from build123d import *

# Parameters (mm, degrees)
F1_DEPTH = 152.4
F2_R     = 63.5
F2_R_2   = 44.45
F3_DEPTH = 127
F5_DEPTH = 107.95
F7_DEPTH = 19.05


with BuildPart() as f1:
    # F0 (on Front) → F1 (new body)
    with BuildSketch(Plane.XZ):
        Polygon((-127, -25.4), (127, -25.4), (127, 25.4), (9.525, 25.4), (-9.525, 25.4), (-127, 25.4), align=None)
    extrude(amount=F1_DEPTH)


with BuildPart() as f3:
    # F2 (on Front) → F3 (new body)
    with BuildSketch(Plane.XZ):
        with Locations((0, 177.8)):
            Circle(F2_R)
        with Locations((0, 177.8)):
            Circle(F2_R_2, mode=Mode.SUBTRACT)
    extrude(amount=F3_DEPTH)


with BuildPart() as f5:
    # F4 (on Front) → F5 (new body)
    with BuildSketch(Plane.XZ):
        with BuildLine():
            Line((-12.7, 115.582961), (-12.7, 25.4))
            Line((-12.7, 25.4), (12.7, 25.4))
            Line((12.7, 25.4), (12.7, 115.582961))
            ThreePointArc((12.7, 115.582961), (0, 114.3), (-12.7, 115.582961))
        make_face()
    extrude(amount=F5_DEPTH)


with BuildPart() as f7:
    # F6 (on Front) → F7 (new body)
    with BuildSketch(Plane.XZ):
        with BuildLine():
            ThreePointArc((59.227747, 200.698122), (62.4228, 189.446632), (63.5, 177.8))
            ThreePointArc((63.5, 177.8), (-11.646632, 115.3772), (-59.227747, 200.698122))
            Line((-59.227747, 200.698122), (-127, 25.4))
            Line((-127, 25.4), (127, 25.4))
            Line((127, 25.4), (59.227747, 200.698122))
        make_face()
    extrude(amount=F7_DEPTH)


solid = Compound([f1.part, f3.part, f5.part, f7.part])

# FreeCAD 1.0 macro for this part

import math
import FreeCAD as App
import Part
import Sketcher
from FreeCAD import Vector
Q = App.Units.Quantity

doc = App.newDocument("Part")
body = doc.addObject("PartDesign::Body", "Body")

# Sketch on XZ plane
sketch1 = body.newObject("Sketcher::SketchObject", "Sketch")
sketch1.AttachmentSupport = (doc.getObject("XZ_Plane"), [""])
sketch1.MapMode = "FlatFace"
sketch1.addGeometry([
    Part.LineSegment(Vector(-127, -25, 0), Vector(127, -25, 0)),
    Part.LineSegment(Vector(127, -25, 0), Vector(127, 25, 0)),
    Part.LineSegment(Vector(127, 25, 0), Vector(-127, 25, 0)),
    Part.LineSegment(Vector(-127, 25, 0), Vector(-127, -25, 0)),
], False)
sketch1.addConstraint([
    Sketcher.Constraint("Coincident", 0, 2, 1, 1),
    Sketcher.Constraint("Coincident", 1, 2, 2, 1),
    Sketcher.Constraint("Coincident", 2, 2, 3, 1),
    Sketcher.Constraint("Coincident", 3, 2, 0, 1),
    Sketcher.Constraint("Horizontal", 0),
    Sketcher.Constraint("Vertical", 1),
    Sketcher.Constraint("Horizontal", 2),
    Sketcher.Constraint("Vertical", 3),
    Sketcher.Constraint("Symmetric", 0, 2, 2, 2, -1, 1),
    Sketcher.Constraint("DistanceX", 0, 1, 0, 2, Q("10 in")),
    Sketcher.Constraint("DistanceY", 1, 1, 1, 2, Q("2 in")),
])
pad1 = body.newObject("PartDesign::Pad", "Pad")
pad1.Profile = sketch1
pad1.Length = Q("6 in")
body2 = doc.addObject("PartDesign::Body", "Body001")

# Sketch on XZ plane
sketch2 = body2.newObject("Sketcher::SketchObject", "Sketch001")
sketch2.AttachmentSupport = (doc.getObject("XZ_Plane001"), [""])
sketch2.MapMode = "FlatFace"
sketch2.addGeometry([
    Part.Circle(Vector(0, 178, 0), Vector(0, 0, 1), 64),
    Part.Circle(Vector(0, 178, 0), Vector(0, 0, 1), 44),
], False)
sketch2.addConstraint([
    Sketcher.Constraint("Coincident", 1, 3, 0, 3),
    Sketcher.Constraint("PointOnObject", 0, 3, -2),
    Sketcher.Constraint("Diameter", 0, Q("5 in")),
    Sketcher.Constraint("Diameter", 1, Q("3.5 in")),
    Sketcher.Constraint("DistanceY", -1, 1, 0, 3, Q("7 in")),
])
pad2 = body2.newObject("PartDesign::Pad", "Pad001")
pad2.Profile = sketch2
pad2.Length = Q("5 in")
body3 = doc.addObject("PartDesign::Body", "Body002")

# Sketch on XZ plane
sketch3 = body3.newObject("Sketcher::SketchObject", "Sketch002")
sketch3.AttachmentSupport = (doc.getObject("XZ_Plane002"), [""])
sketch3.MapMode = "FlatFace"
sketch3.addGeometry([
    Part.LineSegment(Vector(-13, 116, 0), Vector(-13, 25, 0)),
    Part.LineSegment(Vector(-13, 25, 0), Vector(13, 25, 0)),
    Part.LineSegment(Vector(13, 25, 0), Vector(13, 116, 0)),
    Part.ArcOfCircle(Part.Circle(Vector(0, 178, 0), Vector(0, 0, 1), 63), math.radians(-102), math.radians(-78)),
], False)
sketch3.addConstraint([
    Sketcher.Constraint("Coincident", 0, 2, 1, 1),
    Sketcher.Constraint("Coincident", 1, 2, 2, 1),
    Sketcher.Constraint("Coincident", 2, 2, 3, 2),
    Sketcher.Constraint("Coincident", 3, 1, 0, 1),
    Sketcher.Constraint("Vertical", 0),
    Sketcher.Constraint("Horizontal", 1),
    Sketcher.Constraint("Vertical", 2),
    Sketcher.Constraint("Symmetric", 2, 2, 3, 1, -2),
    Sketcher.Constraint("DistanceX", 1, 1, 1, 2, Q("1 in")),
    Sketcher.Constraint("DistanceY", -1, 1, 0, 2, Q("1 in")),
    Sketcher.Constraint("Radius", 3, Q("63.499977 mm")),
    Sketcher.Constraint("DistanceY", 0, 2, 0, 1, Q("90.182961 mm")),
])
pad3 = body3.newObject("PartDesign::Pad", "Pad002")
pad3.Profile = sketch3
pad3.Length = Q("4.25 in")
body4 = doc.addObject("PartDesign::Body", "Body003")

# Sketch on XZ plane
sketch4 = body4.newObject("Sketcher::SketchObject", "Sketch003")
sketch4.AttachmentSupport = (doc.getObject("XZ_Plane003"), [""])
sketch4.MapMode = "FlatFace"
sketch4.addGeometry([
    Part.ArcOfCircle(Part.Circle(Vector(0, 178, 0), Vector(0, 0, 1), 64), math.radians(0), math.radians(21)),  # 0
    Part.ArcOfCircle(Part.Circle(Vector(0, 178, 0), Vector(0, 0, 1), 64), math.radians(159), math.radians(360)),  # 1
    Part.LineSegment(Vector(-59, 201, 0), Vector(-127, 25, 0)),  # 2
    Part.LineSegment(Vector(-127, 25, 0), Vector(127, 25, 0)),  # 3
    Part.LineSegment(Vector(127, 25, 0), Vector(59, 201, 0)),  # 4
], False)
sketch4.addConstraint([
    Sketcher.Constraint("Tangent", 0, 1, 1, 2),
    Sketcher.Constraint("Tangent", 1, 1, 2, 1),
    Sketcher.Constraint("Coincident", 2, 2, 3, 1),
    Sketcher.Constraint("Coincident", 3, 2, 4, 1),
    Sketcher.Constraint("Tangent", 4, 2, 0, 2),
    Sketcher.Constraint("Horizontal", 3),
    Sketcher.Constraint("Symmetric", 1, 1, 4, 2, -2),
    Sketcher.Constraint("PointOnObject", 1, 3, -2),
    Sketcher.Constraint("Horizontal", 1, 3, 0, 1),
    Sketcher.Constraint("Radius", 0, Q("2.5000001 in")),
    Sketcher.Constraint("DistanceX", 3, 1, 3, 2, Q("10 in")),
    Sketcher.Constraint("DistanceY", -1, 1, 0, 3, Q("7 in")),
    Sketcher.Constraint("DistanceY", -1, 1, 2, 2, Q("1 in")),
])
pad4 = body4.newObject("PartDesign::Pad", "Pad003")
pad4.Profile = sketch4
pad4.Length = Q("0.75 in")

doc.recompute()
